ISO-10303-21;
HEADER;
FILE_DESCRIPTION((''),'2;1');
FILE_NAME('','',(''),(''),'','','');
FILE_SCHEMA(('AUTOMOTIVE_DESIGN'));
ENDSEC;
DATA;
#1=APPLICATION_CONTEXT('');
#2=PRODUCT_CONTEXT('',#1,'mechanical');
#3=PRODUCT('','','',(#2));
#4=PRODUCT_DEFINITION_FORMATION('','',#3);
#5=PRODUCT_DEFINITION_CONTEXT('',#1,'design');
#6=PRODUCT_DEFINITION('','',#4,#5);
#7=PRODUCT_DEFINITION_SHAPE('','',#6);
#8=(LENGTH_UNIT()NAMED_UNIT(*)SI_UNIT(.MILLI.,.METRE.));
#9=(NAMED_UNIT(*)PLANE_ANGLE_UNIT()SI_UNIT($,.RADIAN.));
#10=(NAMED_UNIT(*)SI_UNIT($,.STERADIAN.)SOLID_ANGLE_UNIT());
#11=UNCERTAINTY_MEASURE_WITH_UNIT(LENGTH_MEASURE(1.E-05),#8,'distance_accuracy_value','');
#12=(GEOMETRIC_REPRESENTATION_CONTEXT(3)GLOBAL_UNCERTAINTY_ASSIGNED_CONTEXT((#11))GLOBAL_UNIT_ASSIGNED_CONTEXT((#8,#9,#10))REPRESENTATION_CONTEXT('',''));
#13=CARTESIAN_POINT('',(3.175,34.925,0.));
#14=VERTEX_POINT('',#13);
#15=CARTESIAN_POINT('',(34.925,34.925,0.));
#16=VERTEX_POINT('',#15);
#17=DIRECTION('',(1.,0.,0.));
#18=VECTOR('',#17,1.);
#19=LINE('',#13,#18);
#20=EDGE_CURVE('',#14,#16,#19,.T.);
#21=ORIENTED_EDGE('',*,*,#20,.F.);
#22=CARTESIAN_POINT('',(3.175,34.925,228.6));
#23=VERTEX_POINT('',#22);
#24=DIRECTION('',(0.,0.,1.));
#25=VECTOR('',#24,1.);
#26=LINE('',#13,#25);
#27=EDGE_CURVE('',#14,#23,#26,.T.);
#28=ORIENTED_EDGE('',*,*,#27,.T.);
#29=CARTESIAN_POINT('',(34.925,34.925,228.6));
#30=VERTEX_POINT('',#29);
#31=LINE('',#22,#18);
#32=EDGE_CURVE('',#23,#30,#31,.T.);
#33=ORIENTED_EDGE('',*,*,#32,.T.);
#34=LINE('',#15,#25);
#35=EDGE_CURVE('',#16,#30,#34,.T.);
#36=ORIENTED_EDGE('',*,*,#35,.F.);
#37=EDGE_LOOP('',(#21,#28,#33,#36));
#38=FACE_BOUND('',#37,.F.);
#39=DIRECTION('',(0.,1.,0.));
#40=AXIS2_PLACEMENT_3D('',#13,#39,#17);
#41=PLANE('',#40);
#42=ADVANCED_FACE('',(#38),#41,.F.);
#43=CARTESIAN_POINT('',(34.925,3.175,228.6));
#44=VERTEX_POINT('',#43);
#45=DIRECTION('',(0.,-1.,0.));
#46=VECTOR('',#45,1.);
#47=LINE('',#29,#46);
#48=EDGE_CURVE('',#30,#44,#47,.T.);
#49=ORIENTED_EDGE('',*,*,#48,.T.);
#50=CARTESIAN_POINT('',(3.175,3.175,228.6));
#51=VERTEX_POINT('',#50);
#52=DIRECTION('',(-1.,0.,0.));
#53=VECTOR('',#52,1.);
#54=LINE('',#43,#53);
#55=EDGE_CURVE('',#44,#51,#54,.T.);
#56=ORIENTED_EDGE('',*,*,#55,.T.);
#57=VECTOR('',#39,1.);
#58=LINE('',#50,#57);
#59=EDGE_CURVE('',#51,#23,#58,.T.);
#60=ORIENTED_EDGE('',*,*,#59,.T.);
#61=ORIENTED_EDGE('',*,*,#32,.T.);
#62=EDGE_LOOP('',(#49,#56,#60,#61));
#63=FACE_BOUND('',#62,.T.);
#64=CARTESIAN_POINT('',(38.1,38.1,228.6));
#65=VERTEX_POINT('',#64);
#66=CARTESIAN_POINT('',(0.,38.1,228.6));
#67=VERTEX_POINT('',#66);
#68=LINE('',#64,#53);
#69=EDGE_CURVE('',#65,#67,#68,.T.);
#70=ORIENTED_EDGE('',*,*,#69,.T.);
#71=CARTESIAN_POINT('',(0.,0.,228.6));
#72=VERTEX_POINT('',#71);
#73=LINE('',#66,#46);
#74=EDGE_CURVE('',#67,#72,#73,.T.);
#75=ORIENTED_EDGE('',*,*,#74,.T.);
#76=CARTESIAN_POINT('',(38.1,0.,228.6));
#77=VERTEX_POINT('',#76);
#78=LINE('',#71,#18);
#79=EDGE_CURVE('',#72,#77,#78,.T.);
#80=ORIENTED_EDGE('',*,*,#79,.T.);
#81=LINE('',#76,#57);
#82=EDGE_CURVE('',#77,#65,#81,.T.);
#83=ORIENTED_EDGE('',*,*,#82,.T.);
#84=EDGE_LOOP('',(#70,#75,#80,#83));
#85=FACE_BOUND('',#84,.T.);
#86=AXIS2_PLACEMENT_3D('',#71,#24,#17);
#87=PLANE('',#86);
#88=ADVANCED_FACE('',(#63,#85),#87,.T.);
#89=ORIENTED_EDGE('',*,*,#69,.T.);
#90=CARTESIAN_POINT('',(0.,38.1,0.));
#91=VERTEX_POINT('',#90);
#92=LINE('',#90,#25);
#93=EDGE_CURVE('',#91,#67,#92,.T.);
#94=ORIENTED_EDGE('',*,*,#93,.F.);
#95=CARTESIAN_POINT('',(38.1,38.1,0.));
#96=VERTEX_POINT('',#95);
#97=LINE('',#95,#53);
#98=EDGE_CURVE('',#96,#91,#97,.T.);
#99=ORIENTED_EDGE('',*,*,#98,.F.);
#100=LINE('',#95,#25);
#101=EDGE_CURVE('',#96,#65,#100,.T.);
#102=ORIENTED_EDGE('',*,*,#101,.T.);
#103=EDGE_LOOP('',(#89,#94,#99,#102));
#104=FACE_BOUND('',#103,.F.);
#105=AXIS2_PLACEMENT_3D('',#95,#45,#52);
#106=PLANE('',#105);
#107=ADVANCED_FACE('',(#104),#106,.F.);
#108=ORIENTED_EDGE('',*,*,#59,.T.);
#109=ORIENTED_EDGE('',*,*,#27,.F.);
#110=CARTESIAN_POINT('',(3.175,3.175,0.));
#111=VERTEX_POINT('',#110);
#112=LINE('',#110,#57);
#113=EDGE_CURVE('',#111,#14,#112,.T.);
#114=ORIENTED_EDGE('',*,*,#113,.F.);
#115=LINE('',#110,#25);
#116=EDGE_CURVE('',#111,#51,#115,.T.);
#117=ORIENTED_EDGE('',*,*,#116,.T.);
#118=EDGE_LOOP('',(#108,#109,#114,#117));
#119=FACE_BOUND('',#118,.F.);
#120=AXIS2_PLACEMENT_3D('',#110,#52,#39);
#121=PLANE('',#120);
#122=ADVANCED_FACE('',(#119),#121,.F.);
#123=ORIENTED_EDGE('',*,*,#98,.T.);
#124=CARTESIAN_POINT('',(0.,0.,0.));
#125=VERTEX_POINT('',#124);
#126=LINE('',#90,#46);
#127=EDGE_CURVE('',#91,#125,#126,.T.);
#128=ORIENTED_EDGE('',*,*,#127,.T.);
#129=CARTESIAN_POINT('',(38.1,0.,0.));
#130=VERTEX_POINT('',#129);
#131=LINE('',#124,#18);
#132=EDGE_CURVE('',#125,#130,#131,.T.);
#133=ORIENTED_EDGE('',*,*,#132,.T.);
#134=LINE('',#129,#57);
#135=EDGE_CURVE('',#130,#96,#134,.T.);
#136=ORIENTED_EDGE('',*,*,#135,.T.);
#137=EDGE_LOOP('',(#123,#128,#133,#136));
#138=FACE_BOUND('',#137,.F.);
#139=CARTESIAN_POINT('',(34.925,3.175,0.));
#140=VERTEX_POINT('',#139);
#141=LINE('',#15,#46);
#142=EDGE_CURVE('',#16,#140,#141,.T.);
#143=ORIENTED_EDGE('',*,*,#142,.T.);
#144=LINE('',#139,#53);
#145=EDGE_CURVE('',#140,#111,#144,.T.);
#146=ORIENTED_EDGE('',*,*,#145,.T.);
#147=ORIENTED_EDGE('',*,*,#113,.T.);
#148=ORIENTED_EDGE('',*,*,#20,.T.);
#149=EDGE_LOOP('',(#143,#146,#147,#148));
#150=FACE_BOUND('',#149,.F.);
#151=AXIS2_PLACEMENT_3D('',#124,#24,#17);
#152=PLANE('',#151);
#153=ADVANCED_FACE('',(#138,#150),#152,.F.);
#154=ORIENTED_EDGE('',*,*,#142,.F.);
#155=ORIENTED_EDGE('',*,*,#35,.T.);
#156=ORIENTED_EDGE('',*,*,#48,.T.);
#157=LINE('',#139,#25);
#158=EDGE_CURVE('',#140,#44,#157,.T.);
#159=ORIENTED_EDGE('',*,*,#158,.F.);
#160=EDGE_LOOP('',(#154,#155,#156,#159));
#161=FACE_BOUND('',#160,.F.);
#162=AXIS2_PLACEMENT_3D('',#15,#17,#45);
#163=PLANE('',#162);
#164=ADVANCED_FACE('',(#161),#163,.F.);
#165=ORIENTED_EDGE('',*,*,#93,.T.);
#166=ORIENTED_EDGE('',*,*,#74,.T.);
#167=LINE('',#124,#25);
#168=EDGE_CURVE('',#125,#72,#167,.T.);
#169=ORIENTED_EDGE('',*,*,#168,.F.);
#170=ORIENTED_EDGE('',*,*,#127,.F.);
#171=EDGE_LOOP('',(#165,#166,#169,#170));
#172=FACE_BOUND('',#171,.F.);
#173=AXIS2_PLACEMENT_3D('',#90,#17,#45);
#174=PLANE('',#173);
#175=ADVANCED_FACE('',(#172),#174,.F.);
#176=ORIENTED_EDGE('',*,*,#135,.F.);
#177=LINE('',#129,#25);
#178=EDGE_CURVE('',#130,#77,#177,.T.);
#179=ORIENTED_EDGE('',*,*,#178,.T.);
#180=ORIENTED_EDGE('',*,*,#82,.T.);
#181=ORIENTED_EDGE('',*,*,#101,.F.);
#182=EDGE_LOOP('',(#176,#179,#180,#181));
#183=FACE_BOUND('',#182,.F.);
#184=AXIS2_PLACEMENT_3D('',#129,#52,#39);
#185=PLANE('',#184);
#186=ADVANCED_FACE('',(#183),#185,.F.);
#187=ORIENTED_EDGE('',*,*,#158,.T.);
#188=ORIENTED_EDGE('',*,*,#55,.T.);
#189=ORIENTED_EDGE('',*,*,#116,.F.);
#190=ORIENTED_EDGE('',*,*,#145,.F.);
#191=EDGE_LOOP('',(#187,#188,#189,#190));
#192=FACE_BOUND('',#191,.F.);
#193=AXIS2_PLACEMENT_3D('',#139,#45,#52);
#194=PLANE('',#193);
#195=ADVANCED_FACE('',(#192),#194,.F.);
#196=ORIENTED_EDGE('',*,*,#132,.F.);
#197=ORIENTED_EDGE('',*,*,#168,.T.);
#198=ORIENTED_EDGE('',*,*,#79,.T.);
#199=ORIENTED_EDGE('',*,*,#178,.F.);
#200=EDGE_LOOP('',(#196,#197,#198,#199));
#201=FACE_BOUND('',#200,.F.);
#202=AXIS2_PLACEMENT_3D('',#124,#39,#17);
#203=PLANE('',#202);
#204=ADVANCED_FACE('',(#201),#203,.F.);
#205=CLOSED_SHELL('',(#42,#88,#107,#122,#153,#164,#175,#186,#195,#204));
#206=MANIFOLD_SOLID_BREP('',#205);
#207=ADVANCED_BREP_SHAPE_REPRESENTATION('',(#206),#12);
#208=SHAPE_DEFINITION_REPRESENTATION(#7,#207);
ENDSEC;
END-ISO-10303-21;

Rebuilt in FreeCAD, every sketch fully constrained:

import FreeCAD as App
import Part
import Sketcher
from FreeCAD import Vector
Q = App.Units.Quantity

doc = App.newDocument("Part")
body = doc.addObject("PartDesign::Body", "Body")

sketch1 = body.newObject("Sketcher::SketchObject", "Sketch")
sketch1.AttachmentSupport = (doc.getObject("XY_Plane"), [""])
sketch1.MapMode = "FlatFace"
sketch1.addGeometry([
    Part.LineSegment(Vector(0, 38, 0), Vector(0, 0, 0)),
    Part.LineSegment(Vector(0, 0, 0), Vector(38, 0, 0)),
    Part.LineSegment(Vector(38, 0, 0), Vector(38, 38, 0)),
    Part.LineSegment(Vector(38, 38, 0), Vector(0, 38, 0)),
    Part.LineSegment(Vector(3, 35, 0), Vector(35, 35, 0)),
    Part.LineSegment(Vector(35, 35, 0), Vector(35, 3, 0)),
    Part.LineSegment(Vector(35, 3, 0), Vector(3, 3, 0)),
    Part.LineSegment(Vector(3, 3, 0), Vector(3, 35, 0)),
], False)
sketch1.addConstraint([
    Sketcher.Constraint("Coincident", 0, 2, 1, 1),
    Sketcher.Constraint("Coincident", 1, 2, 2, 1),
    Sketcher.Constraint("Coincident", 2, 2, 3, 1),
    Sketcher.Constraint("Coincident", 3, 2, 0, 1),
    Sketcher.Constraint("Coincident", 4, 2, 5, 1),
    Sketcher.Constraint("Coincident", 5, 2, 6, 1),
    Sketcher.Constraint("Coincident", 6, 2, 7, 1),
    Sketcher.Constraint("Coincident", 7, 2, 4, 1),
    Sketcher.Constraint("Vertical", 0),
    Sketcher.Constraint("Horizontal", 1),
    Sketcher.Constraint("Vertical", 2),
    Sketcher.Constraint("Horizontal", 3),
    Sketcher.Constraint("Horizontal", 4),
    Sketcher.Constraint("Vertical", 5),
    Sketcher.Constraint("Horizontal", 6),
    Sketcher.Constraint("Vertical", 7),
    Sketcher.Constraint("Coincident", 0, 2, -1, 1),
    Sketcher.Constraint("Equal", 3, 0),
    Sketcher.Constraint("Equal", 6, 5),
    Sketcher.Constraint("DistanceX", 1, 1, 1, 2, Q("1.5 in")),
    Sketcher.Constraint("DistanceY", -1, 1, 5, 2, Q("0.125 in")),
    Sketcher.Constraint("DistanceX", -1, 1, 6, 2, Q("0.125 in")),
    Sketcher.Constraint("DistanceX", 4, 2, 2, 2, Q("0.125 in")),
])
pad1 = body.newObject("PartDesign::Pad", "Pad")
pad1.Profile = sketch1
pad1.Length = Q("9 in")

doc.recompute()
